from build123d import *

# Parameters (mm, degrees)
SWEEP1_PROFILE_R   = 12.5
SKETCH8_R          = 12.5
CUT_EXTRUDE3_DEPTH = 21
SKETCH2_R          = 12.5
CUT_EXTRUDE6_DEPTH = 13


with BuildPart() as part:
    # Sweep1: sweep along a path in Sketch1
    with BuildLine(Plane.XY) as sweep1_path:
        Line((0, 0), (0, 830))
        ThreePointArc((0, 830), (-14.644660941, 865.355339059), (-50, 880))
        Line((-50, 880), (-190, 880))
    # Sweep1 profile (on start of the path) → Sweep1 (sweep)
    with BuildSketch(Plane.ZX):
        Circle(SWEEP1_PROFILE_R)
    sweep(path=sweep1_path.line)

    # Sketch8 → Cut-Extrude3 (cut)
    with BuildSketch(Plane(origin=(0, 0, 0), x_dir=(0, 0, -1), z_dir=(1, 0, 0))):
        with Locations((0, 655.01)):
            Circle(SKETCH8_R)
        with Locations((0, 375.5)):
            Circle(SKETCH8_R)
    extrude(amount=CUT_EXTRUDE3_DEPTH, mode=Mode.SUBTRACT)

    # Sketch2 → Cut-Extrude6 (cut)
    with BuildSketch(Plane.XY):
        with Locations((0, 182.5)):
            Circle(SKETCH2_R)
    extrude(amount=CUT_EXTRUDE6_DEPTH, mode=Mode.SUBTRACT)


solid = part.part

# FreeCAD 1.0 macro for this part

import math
import FreeCAD as App
import Part
import Sketcher

V = App.Vector
Q = App.Units.Quantity

doc = App.newDocument("Part")
params = doc.addObject("Spreadsheet::Sheet", "Params")
for row, (alias, value) in enumerate([
    ("sketch1_diameter", "25 mm"),
    ("sketch2_radius", "50 mm"),
    ("sketch2_width", "140 mm"),
    ("sketch2_height", "830 mm"),
    ("sketch3_diameter", "25 mm"),
    ("pocket1_length", "21 mm"),
    ("sketch4_diameter", "25 mm"),
    ("pocket2_length", "13 mm"),
], start=1):
    params.set(f"A{row}", alias)
    params.set(f"B{row}", "=" + value)
    params.setAlias(f"B{row}", alias)

body = doc.addObject("PartDesign::Body", "Body")

sketch1 = body.newObject("Sketcher::SketchObject", "Sketch")
sketch1.AttachmentSupport = (doc.getObject("XZ_Plane"), [""])
sketch1.MapMode = "FlatFace"
sketch1.addGeometry(Part.Circle(V(0, 0, 0), V(0, 0, 1), 12), False)
sketch1.addConstraint(Sketcher.Constraint("Coincident", 0, 3, -1, 1))
sketch1.addConstraint(Sketcher.Constraint("Diameter", 0, Q("25 mm")))
sketch1.setExpression("Constraints[1]", "Params.sketch1_diameter")

sketch2 = body.newObject("Sketcher::SketchObject", "Sketch001")
sketch2.AttachmentSupport = (doc.getObject("XY_Plane"), [""])
sketch2.MapMode = "FlatFace"
sketch2.addGeometry(Part.LineSegment(V(0, 0, 0), V(0, 830, 0)), False)
sketch2.addGeometry(Part.ArcOfCircle(Part.Circle(V(-50, 830, 0), V(0, 0, 1), 50), math.radians(0), math.radians(90)), False)
sketch2.addGeometry(Part.LineSegment(V(-50, 880, 0), V(-190, 880, 0)), False)
sketch2.addConstraint(Sketcher.Constraint("Tangent", 0, 2, 1, 1))
sketch2.addConstraint(Sketcher.Constraint("Tangent", 1, 2, 2, 1))
sketch2.addConstraint(Sketcher.Constraint("Vertical", 0))
sketch2.addConstraint(Sketcher.Constraint("Horizontal", 2))
sketch2.addConstraint(Sketcher.Constraint("Coincident", 0, 1, -1, 1))
sketch2.addConstraint(Sketcher.Constraint("Radius", 1, Q("50 mm")))
sketch2.addConstraint(Sketcher.Constraint("DistanceX", 2, 2, 2, 1, Q("140 mm")))
sketch2.addConstraint(Sketcher.Constraint("DistanceY", 0, 1, 0, 2, Q("830 mm")))
sketch2.setExpression("Constraints[5]", "Params.sketch2_radius")
sketch2.setExpression("Constraints[6]", "Params.sketch2_width")
sketch2.setExpression("Constraints[7]", "Params.sketch2_height")
doc.recompute()

additivepipe = body.newObject("PartDesign::AdditivePipe", "AdditivePipe")
additivepipe.Profile = sketch1
additivepipe.Spine = (sketch2, ["Edge1", "Edge2", "Edge3"])

sketch3 = body.newObject("Sketcher::SketchObject", "Sketch002")
sketch3.AttachmentSupport = (doc.getObject("YZ_Plane"), [""])
sketch3.MapMode = "FlatFace"
sketch3.addGeometry(Part.Circle(V(655, 0, 0), V(0, 0, 1), 12), False)
sketch3.addGeometry(Part.Circle(V(376, 0, 0), V(0, 0, 1), 12), False)
sketch3.addConstraint(Sketcher.Constraint("Equal", 0, 1))
sketch3.addConstraint(Sketcher.Constraint("PointOnObject", 0, 3, -1))
sketch3.addConstraint(Sketcher.Constraint("PointOnObject", 1, 3, -1))
sketch3.addConstraint(Sketcher.Constraint("Diameter", 0, Q("25 mm")))
sketch3.addConstraint(Sketcher.Constraint("DistanceX", -1, 1, 1, 3, Q("375.5 mm")))
sketch3.addConstraint(Sketcher.Constraint("DistanceX", -1, 1, 0, 3, Q("655.01 mm")))
sketch3.setExpression("Constraints[3]", "Params.sketch3_diameter")
pocket1 = body.newObject("PartDesign::Pocket", "Pocket")
pocket1.Profile = sketch3
pocket1.setExpression("Length", "Params.pocket1_length")
pocket1.Reversed = True

sketch4 = body.newObject("Sketcher::SketchObject", "Sketch003")
sketch4.AttachmentSupport = (doc.getObject("XY_Plane"), [""])
sketch4.MapMode = "FlatFace"
sketch4.addGeometry(Part.Circle(V(0, 182, 0), V(0, 0, 1), 12), False)
sketch4.addConstraint(Sketcher.Constraint("PointOnObject", 0, 3, -2))
sketch4.addConstraint(Sketcher.Constraint("Diameter", 0, Q("25 mm")))
sketch4.addConstraint(Sketcher.Constraint("DistanceY", -1, 1, 0, 3, Q("182.5 mm")))
sketch4.setExpression("Constraints[1]", "Params.sketch4_diameter")
pocket2 = body.newObject("PartDesign::Pocket", "Pocket001")
pocket2.Profile = sketch4
pocket2.setExpression("Length", "Params.pocket2_length")
pocket2.Reversed = True

doc.recompute()
